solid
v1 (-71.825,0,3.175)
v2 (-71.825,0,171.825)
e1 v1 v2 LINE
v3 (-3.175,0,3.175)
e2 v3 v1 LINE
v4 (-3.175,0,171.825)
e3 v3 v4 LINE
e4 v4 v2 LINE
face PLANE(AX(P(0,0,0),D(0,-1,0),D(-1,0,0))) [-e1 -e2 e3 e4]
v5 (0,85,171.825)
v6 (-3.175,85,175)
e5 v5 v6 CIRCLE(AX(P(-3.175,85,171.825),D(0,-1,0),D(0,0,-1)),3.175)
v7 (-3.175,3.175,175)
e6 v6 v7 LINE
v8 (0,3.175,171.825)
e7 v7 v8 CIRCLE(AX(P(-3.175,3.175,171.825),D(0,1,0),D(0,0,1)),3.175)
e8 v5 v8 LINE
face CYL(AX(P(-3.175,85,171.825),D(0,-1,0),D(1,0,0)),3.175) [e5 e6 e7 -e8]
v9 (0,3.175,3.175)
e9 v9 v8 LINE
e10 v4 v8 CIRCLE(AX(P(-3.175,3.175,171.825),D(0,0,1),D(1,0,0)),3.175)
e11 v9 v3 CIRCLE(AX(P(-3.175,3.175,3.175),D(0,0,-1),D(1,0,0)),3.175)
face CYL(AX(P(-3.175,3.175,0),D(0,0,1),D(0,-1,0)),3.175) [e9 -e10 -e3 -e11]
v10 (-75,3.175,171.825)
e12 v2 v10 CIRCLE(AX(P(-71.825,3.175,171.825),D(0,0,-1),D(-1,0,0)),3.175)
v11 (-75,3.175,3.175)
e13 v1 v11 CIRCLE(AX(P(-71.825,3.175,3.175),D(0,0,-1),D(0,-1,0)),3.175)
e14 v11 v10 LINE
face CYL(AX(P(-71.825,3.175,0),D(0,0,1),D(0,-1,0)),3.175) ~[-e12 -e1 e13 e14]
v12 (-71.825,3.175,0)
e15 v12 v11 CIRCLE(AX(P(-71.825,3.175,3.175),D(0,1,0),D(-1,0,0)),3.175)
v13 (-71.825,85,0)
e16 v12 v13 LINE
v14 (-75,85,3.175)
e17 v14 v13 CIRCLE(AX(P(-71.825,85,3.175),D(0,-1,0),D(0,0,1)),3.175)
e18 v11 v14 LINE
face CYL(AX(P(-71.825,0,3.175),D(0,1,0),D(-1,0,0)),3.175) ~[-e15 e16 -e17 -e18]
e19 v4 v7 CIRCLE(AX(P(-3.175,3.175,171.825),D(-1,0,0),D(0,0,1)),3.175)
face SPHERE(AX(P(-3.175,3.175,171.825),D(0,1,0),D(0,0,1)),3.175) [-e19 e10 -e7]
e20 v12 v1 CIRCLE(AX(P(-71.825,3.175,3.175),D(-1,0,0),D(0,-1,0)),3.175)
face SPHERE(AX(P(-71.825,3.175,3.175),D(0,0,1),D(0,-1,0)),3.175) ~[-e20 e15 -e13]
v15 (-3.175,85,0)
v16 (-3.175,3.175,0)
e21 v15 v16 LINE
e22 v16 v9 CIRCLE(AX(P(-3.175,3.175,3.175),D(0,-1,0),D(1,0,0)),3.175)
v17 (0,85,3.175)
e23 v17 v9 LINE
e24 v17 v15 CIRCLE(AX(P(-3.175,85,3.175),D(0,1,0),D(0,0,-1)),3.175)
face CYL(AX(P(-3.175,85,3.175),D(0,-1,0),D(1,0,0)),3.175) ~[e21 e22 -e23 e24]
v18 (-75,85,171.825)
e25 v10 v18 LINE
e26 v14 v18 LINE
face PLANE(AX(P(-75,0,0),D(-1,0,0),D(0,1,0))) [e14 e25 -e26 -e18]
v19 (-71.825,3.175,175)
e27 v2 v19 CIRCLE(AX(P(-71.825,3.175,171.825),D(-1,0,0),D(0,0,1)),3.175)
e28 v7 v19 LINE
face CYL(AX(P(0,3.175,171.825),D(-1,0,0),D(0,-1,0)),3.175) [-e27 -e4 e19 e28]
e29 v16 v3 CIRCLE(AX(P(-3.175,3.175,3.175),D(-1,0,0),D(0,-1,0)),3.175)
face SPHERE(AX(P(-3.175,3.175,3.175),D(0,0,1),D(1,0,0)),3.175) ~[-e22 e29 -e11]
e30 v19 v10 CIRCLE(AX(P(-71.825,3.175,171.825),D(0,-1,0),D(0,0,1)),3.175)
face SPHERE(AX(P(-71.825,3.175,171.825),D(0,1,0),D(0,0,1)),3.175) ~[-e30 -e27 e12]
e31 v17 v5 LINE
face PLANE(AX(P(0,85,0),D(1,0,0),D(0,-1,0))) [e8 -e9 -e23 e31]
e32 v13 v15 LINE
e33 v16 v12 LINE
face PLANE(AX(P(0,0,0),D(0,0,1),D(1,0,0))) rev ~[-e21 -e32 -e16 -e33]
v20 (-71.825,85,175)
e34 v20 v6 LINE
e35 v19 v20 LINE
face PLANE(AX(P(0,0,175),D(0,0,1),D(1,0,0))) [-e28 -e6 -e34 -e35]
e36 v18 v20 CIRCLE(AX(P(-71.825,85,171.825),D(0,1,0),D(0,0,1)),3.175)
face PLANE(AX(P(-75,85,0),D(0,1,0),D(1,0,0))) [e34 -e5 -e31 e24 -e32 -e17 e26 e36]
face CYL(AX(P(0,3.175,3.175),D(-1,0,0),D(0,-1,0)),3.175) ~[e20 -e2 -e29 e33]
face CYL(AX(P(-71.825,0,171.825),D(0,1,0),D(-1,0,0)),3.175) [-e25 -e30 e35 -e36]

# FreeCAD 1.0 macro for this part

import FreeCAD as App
import Part
import Sketcher

V = App.Vector


def edges_at(feature, points):
    """Names of the edges that pass closest to the given points."""
    edges = feature.Shape.Edges
    near = lambda p: min(range(len(edges)), key=lambda i: edges[i].distToShape(Part.Vertex(*p))[0])
    return sorted({f"Edge{near(p) + 1}" for p in points})

doc = App.newDocument("Part")
params = doc.addObject("Spreadsheet::Sheet", "Params")
for row, (alias, value) in enumerate([
    ("sketch1_width", "75 mm"),
    ("sketch1_height", "85 mm"),
    ("pad1_length", "175 mm"),
    ("fillet_radius", "3.175 mm"),
], start=1):
    params.set(f"A{row}", alias)
    params.set(f"B{row}", "=" + value)
    params.setAlias(f"B{row}", alias)

body = doc.addObject("PartDesign::Body", "Body")

sketch1 = doc.addObject("Sketcher::SketchObject", "Sketch")
body.addObject(sketch1)
sketch1.AttachmentSupport = (doc.XY_Plane, [""])
sketch1.MapMode = "FlatFace"
sketch1.addGeometry(Part.LineSegment(V(-75, 0, 0), V(0, 0, 0)), False)
sketch1.addGeometry(Part.LineSegment(V(0, 0, 0), V(0, 85, 0)), False)
sketch1.addGeometry(Part.LineSegment(V(0, 85, 0), V(-75, 85, 0)), False)
sketch1.addGeometry(Part.LineSegment(V(-75, 85, 0), V(-75, 0, 0)), False)
sketch1.addConstraint(Sketcher.Constraint("Coincident", 0, 2, 1, 1))
sketch1.addConstraint(Sketcher.Constraint("Coincident", 1, 2, 2, 1))
sketch1.addConstraint(Sketcher.Constraint("Coincident", 2, 2, 3, 1))
sketch1.addConstraint(Sketcher.Constraint("Coincident", 3, 2, 0, 1))
sketch1.addConstraint(Sketcher.Constraint("Horizontal", 0))
sketch1.addConstraint(Sketcher.Constraint("Vertical", 1))
sketch1.addConstraint(Sketcher.Constraint("Horizontal", 2))
sketch1.addConstraint(Sketcher.Constraint("Vertical", 3))
sketch1.addConstraint(Sketcher.Constraint("Coincident", 0, 2, -1, 1))
sketch1.addConstraint(Sketcher.Constraint("DistanceX", 0, 1, 0, 2, 75.0))
sketch1.addConstraint(Sketcher.Constraint("DistanceY", 1, 1, 1, 2, 85.0))
sketch1.setExpression("Constraints[9]", "Params.sketch1_width")
sketch1.setExpression("Constraints[10]", "Params.sketch1_height")
pad1 = doc.addObject("PartDesign::Pad", "Pad")
body.addObject(pad1)
pad1.Profile = sketch1
pad1.setExpression("Length", "Params.pad1_length")
doc.recompute()

fillet = doc.addObject("PartDesign::Fillet", "Fillet")
body.addObject(fillet)
fillet.Base = (pad1, edges_at(pad1, [
    (-75, 42.5, 175),
    (0, 42.5, 175),
    (-37.5, 0, 175),
    (-75, 0, 87.5),
    (0, 0, 87.5),
    (0, 42.5, 0),
    (-37.5, 0, 0),
    (-75, 42.5, 0),
]))
fillet.setExpression("Radius", "Params.fillet_radius")

doc.recompute()
